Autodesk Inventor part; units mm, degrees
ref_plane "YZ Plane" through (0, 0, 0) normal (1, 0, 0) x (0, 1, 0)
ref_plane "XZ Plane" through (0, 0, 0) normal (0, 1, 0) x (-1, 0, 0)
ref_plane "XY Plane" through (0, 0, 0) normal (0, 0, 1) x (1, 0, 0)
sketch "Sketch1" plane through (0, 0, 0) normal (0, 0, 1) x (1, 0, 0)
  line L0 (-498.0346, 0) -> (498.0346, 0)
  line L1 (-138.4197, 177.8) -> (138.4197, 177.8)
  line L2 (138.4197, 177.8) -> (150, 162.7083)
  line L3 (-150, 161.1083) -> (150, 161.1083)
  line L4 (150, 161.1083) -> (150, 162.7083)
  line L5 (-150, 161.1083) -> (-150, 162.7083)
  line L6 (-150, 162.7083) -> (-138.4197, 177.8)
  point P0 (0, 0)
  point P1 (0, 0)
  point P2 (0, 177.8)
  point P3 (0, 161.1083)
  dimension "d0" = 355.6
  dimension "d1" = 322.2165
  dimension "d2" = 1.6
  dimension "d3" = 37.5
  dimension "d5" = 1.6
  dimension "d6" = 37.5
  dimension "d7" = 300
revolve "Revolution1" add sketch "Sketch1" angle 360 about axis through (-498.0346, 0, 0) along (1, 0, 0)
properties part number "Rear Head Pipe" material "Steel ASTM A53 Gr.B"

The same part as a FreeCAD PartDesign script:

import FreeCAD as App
import Part
import Sketcher

V = App.Vector
Q = App.Units.Quantity


def add_polygon(sketch, points):
    """Adds a closed chain of lines whose ends are joined by coincident constraints."""
    first, n = sketch.GeometryCount, len(points)
    for a, b in zip(points, points[1:] + points[:1]):
        sketch.addGeometry(Part.LineSegment(App.Vector(*a, 0), App.Vector(*b, 0)), False)
    for i in range(n):
        sketch.addConstraint(Sketcher.Constraint("Coincident", first + i, 2, first + (i + 1) % n, 1))

doc = App.newDocument("Part")
body = doc.addObject("PartDesign::Body", "Body")

sketch1 = doc.addObject("Sketcher::SketchObject", "Sketch")
body.addObject(sketch1)
sketch1.AttachmentSupport = (doc.XY_Plane, [""])
sketch1.MapMode = "FlatFace"
add_polygon(sketch1, [(138.4197, 177.8), (-138.4197, 177.8), (-150, 162.7083), (-150, 161.1083), (150, 161.1083), (150, 162.7083)])
sketch1.addConstraint([
    Sketcher.Constraint("Horizontal", 0),
    Sketcher.Constraint("Vertical", 2),
    Sketcher.Constraint("Horizontal", 3),
    Sketcher.Constraint("Vertical", 4),
    Sketcher.Constraint("Symmetric", 1, 2, 4, 2, -2),
    Sketcher.Constraint("Equal", 1, 5),
    Sketcher.Constraint("DistanceX", 3, 1, 3, 2, 300.0),
    Sketcher.Constraint("DistanceY", 2, 2, 2, 1, 1.6),
    Sketcher.Constraint("Angle", 1, Q("-127.5 deg")),
    Sketcher.Constraint("DistanceY", -1, 1, 0, 2, 177.8),
    Sketcher.Constraint("DistanceX", 0, 2, 0, 1, 276.8394),
])
revolution = doc.addObject("PartDesign::Revolution", "Revolution")
body.addObject(revolution)
revolution.Profile = sketch1
revolution.ReferenceAxis = (sketch1, ["H_Axis"])
revolution.Angle = 360

doc.recompute()
